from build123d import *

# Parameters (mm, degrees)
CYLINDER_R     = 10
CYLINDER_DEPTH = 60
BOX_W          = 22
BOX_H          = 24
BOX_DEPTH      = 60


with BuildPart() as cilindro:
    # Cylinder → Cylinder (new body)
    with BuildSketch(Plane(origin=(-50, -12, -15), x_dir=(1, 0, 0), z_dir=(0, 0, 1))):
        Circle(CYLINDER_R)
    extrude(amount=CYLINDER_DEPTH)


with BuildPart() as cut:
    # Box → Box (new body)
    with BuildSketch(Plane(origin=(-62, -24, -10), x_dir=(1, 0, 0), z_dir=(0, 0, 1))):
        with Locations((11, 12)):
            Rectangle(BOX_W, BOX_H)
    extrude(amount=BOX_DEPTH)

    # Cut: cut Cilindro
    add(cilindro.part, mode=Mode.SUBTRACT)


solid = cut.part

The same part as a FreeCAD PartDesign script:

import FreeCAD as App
import Part
import Sketcher

V = App.Vector
Q = App.Units.Quantity


def add_polygon(sketch, points):
    """Adds a closed chain of lines whose ends are joined by coincident constraints."""
    first, n = sketch.GeometryCount, len(points)
    for a, b in zip(points, points[1:] + points[:1]):
        sketch.addGeometry(Part.LineSegment(App.Vector(*a, 0), App.Vector(*b, 0)), False)
    for i in range(n):
        sketch.addConstraint(Sketcher.Constraint("Coincident", first + i, 2, first + (i + 1) % n, 1))

doc = App.newDocument("Part")
body = doc.addObject("PartDesign::Body", "Body")

# Sketch on XY plane
sketch1 = body.newObject("Sketcher::SketchObject", "Sketch")
sketch1.AttachmentSupport = (doc.getObject("XY_Plane"), [""])
sketch1.MapMode = "FlatFace"
sketch1.AttachmentOffset = App.Placement(V(0, 0, -15), App.Rotation())
sketch1.addGeometry(Part.Circle(V(-50, -12, 0), V(0, 0, 1), 10), False)
sketch1.addConstraint([
    Sketcher.Constraint("Diameter", 0, Q("20 mm")),
    Sketcher.Constraint("DistanceX", 0, 3, -1, 1, Q("50 mm")),
    Sketcher.Constraint("DistanceY", 0, 3, -1, 1, Q("12 mm")),
])
pad1 = body.newObject("PartDesign::Pad", "Pad")
pad1.Profile = sketch1
pad1.Length = 60
body2 = doc.addObject("PartDesign::Body", "Body001")

# Sketch on XY plane
sketch2 = body2.newObject("Sketcher::SketchObject", "Sketch001")
sketch2.AttachmentSupport = (doc.getObject("XY_Plane001"), [""])
sketch2.MapMode = "FlatFace"
sketch2.AttachmentOffset = App.Placement(V(0, 0, -10), App.Rotation())
add_polygon(sketch2, [(-62, 0), (-62, -24), (-40, -24), (-40, 0)])  # lines 0-3
sketch2.addConstraint([
    Sketcher.Constraint("Vertical", 0),
    Sketcher.Constraint("Horizontal", 1),
    Sketcher.Constraint("Vertical", 2),
    Sketcher.Constraint("Horizontal", 3),
    Sketcher.Constraint("PointOnObject", 2, 2, -1),
    Sketcher.Constraint("DistanceX", 1, 1, 1, 2, Q("22 mm")),
    Sketcher.Constraint("DistanceY", 0, 2, 0, 1, Q("24 mm")),
    Sketcher.Constraint("DistanceX", 0, 2, -1, 1, Q("62 mm")),
])
pad2 = body2.newObject("PartDesign::Pad", "Pad001")
pad2.Profile = sketch2
pad2.Length = 60
doc.recompute()

boolean = body2.newObject("PartDesign::Boolean", "Boolean")
boolean.Type = "Cut"
boolean.addObjects([body])

doc.recompute()
